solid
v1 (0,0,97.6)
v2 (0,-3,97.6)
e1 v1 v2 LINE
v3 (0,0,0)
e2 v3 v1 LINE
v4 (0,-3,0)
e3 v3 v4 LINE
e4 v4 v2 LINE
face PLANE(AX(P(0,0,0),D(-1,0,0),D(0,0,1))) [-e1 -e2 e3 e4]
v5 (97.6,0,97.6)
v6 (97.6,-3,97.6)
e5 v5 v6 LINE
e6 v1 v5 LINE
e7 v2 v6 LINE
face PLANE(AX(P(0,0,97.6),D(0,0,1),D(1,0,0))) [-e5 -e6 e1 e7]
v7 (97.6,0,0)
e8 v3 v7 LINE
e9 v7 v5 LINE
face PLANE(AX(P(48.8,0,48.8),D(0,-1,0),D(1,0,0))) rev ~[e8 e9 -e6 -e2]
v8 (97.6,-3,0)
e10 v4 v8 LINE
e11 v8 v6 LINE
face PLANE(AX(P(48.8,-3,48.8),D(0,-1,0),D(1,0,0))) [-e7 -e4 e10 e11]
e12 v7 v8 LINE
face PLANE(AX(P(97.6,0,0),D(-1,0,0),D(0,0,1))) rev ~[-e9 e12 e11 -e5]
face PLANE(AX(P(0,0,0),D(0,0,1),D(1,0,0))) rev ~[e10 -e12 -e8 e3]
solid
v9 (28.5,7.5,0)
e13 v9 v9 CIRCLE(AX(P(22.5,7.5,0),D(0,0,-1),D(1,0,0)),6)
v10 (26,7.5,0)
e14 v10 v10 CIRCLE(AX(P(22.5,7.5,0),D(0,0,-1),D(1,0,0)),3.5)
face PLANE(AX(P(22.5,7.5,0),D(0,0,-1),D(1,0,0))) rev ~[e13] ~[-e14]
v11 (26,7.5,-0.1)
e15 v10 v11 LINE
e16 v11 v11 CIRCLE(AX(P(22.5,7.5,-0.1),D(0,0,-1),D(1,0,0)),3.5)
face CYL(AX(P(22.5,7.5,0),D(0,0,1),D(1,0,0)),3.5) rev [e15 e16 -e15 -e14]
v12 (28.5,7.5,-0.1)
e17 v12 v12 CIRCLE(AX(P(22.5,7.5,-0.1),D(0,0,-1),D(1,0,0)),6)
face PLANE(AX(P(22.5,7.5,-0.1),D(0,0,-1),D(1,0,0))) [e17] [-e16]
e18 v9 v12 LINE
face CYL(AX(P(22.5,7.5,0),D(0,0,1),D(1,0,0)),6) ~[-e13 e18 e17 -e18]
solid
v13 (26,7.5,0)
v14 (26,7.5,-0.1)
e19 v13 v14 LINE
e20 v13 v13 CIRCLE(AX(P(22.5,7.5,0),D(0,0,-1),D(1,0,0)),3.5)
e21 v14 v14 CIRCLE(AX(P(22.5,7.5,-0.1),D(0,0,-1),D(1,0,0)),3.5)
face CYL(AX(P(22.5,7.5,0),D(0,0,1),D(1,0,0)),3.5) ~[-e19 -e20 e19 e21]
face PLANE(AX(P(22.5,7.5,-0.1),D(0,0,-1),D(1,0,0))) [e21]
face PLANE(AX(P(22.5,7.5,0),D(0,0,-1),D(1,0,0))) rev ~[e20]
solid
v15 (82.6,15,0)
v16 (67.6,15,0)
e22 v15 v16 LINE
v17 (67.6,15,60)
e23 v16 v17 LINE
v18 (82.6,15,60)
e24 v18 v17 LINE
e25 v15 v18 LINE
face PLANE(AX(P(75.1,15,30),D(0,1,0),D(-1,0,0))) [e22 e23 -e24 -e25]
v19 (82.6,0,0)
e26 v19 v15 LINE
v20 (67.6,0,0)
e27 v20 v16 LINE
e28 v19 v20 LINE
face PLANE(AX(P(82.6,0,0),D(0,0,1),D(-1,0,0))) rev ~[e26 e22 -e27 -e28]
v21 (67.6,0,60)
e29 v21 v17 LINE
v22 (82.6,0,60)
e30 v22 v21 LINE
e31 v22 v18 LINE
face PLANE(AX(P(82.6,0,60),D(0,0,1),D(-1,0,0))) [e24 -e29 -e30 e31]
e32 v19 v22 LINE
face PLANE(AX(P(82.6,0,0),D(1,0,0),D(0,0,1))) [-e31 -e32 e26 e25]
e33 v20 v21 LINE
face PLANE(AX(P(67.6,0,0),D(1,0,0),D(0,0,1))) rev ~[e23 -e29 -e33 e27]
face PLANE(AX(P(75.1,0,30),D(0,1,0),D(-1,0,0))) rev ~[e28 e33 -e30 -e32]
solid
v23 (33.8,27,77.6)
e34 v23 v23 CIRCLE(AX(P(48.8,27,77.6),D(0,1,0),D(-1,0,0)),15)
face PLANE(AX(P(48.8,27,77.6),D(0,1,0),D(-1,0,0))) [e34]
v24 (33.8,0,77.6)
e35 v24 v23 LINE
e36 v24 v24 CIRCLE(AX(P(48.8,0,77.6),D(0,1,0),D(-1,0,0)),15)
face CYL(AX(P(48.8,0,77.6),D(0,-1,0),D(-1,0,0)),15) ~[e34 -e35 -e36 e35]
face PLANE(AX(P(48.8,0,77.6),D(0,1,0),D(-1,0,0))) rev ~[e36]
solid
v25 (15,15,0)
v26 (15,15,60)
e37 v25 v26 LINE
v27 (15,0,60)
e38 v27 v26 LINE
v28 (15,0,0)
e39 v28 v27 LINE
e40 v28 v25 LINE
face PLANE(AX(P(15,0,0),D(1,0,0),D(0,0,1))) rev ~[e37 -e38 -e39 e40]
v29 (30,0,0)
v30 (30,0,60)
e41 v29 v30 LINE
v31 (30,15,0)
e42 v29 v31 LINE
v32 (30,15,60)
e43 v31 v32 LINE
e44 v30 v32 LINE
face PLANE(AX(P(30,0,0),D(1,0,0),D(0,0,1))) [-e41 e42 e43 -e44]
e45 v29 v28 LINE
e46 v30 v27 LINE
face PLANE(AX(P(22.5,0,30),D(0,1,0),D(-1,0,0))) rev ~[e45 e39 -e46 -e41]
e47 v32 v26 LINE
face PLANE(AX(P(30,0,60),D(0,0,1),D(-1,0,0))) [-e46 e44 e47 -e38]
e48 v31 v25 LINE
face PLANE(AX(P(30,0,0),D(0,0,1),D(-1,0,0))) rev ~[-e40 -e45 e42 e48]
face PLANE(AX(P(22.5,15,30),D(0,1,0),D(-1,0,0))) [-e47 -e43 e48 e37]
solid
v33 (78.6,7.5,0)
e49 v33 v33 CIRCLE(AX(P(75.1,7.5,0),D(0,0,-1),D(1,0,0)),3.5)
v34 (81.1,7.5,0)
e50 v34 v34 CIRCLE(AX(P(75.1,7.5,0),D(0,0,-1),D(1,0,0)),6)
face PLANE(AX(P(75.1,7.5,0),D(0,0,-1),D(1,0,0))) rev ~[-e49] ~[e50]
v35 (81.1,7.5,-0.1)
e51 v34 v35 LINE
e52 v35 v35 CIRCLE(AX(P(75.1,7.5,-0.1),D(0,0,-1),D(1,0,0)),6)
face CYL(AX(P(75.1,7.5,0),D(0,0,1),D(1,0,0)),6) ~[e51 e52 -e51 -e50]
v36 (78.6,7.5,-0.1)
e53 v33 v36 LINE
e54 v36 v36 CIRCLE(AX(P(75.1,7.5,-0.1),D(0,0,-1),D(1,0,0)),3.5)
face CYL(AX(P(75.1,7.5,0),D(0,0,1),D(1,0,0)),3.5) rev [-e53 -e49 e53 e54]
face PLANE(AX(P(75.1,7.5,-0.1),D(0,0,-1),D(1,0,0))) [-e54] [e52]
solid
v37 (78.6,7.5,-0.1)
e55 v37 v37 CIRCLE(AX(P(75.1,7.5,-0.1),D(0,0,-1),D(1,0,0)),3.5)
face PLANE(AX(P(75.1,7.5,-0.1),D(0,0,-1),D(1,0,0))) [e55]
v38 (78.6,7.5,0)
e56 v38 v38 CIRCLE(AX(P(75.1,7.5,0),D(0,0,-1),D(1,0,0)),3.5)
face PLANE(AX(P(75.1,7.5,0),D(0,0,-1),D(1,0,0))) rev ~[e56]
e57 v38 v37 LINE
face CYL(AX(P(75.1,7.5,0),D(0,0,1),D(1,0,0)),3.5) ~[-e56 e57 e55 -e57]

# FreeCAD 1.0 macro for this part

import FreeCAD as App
import Part
import Sketcher
from FreeCAD import Vector

doc = App.newDocument("Part")
body = doc.addObject("PartDesign::Body", "Body")

sketch1 = body.newObject("Sketcher::SketchObject", "Sketch")
sketch1.AttachmentSupport = (doc.getObject("XZ_Plane"), [""])
sketch1.MapMode = "FlatFace"
sketch1.addGeometry(Part.LineSegment(Vector(0, 97.6, 0), Vector(0, 0, 0)), False)
sketch1.addGeometry(Part.LineSegment(Vector(0, 0, 0), Vector(97.6, 0, 0)), False)
sketch1.addGeometry(Part.LineSegment(Vector(97.6, 0, 0), Vector(97.6, 97.6, 0)), False)
sketch1.addGeometry(Part.LineSegment(Vector(97.6, 97.6, 0), Vector(0, 97.6, 0)), False)
sketch1.addConstraint(Sketcher.Constraint("Coincident", 0, 2, 1, 1))
sketch1.addConstraint(Sketcher.Constraint("Coincident", 1, 2, 2, 1))
sketch1.addConstraint(Sketcher.Constraint("Coincident", 2, 2, 3, 1))
sketch1.addConstraint(Sketcher.Constraint("Coincident", 3, 2, 0, 1))
sketch1.addConstraint(Sketcher.Constraint("Vertical", 0))
sketch1.addConstraint(Sketcher.Constraint("Horizontal", 1))
sketch1.addConstraint(Sketcher.Constraint("Vertical", 2))
sketch1.addConstraint(Sketcher.Constraint("Horizontal", 3))
sketch1.addConstraint(Sketcher.Constraint("Coincident", 0, 2, -1, 1))
sketch1.addConstraint(Sketcher.Constraint("Equal", 3, 0))
sketch1.addConstraint(Sketcher.Constraint("DistanceX", 1, 1, 1, 2, 97.6))
pad1 = body.newObject("PartDesign::Pad", "Pad")
pad1.Profile = sketch1
pad1.Length = 3
body2 = doc.addObject("PartDesign::Body", "Body001")
body2.AllowCompound = True

sketch2 = body2.newObject("Sketcher::SketchObject", "Sketch001")
sketch2.AttachmentSupport = (doc.getObject("XZ_Plane001"), [""])
sketch2.MapMode = "FlatFace"
sketch2.addGeometry(Part.LineSegment(Vector(30, 60, 0), Vector(30, 0, 0)), False)
sketch2.addGeometry(Part.LineSegment(Vector(30, 0, 0), Vector(15, 0, 0)), False)
sketch2.addGeometry(Part.LineSegment(Vector(15, 0, 0), Vector(15, 60, 0)), False)
sketch2.addGeometry(Part.LineSegment(Vector(15, 60, 0), Vector(30, 60, 0)), False)
sketch2.addGeometry(Part.LineSegment(Vector(82.6, 60, 0), Vector(82.6, 0, 0)), False)
sketch2.addGeometry(Part.LineSegment(Vector(82.6, 0, 0), Vector(67.6, 0, 0)), False)
sketch2.addGeometry(Part.LineSegment(Vector(67.6, 0, 0), Vector(67.6, 60, 0)), False)
sketch2.addGeometry(Part.LineSegment(Vector(67.6, 60, 0), Vector(82.6, 60, 0)), False)
sketch2.addConstraint(Sketcher.Constraint("Coincident", 0, 2, 1, 1))
sketch2.addConstraint(Sketcher.Constraint("Coincident", 1, 2, 2, 1))
sketch2.addConstraint(Sketcher.Constraint("Coincident", 2, 2, 3, 1))
sketch2.addConstraint(Sketcher.Constraint("Coincident", 3, 2, 0, 1))
sketch2.addConstraint(Sketcher.Constraint("Coincident", 4, 2, 5, 1))
sketch2.addConstraint(Sketcher.Constraint("Coincident", 5, 2, 6, 1))
sketch2.addConstraint(Sketcher.Constraint("Coincident", 6, 2, 7, 1))
sketch2.addConstraint(Sketcher.Constraint("Coincident", 7, 2, 4, 1))
sketch2.addConstraint(Sketcher.Constraint("Vertical", 0))
sketch2.addConstraint(Sketcher.Constraint("Horizontal", 1))
sketch2.addConstraint(Sketcher.Constraint("Vertical", 2))
sketch2.addConstraint(Sketcher.Constraint("Horizontal", 3))
sketch2.addConstraint(Sketcher.Constraint("Vertical", 4))
sketch2.addConstraint(Sketcher.Constraint("Horizontal", 5))
sketch2.addConstraint(Sketcher.Constraint("Vertical", 6))
sketch2.addConstraint(Sketcher.Constraint("Horizontal", 7))
sketch2.addConstraint(Sketcher.Constraint("PointOnObject", 0, 2, -1))
sketch2.addConstraint(Sketcher.Constraint("PointOnObject", 4, 2, -1))
sketch2.addConstraint(Sketcher.Constraint("Horizontal", 3, 2, 6, 2))
sketch2.addConstraint(Sketcher.Constraint("Equal", 3, 5))
sketch2.addConstraint(Sketcher.Constraint("DistanceX", 1, 2, 1, 1, 15.0))
sketch2.addConstraint(Sketcher.Constraint("DistanceY", 0, 2, 0, 1, 60.0))
sketch2.addConstraint(Sketcher.Constraint("DistanceX", -1, 1, 0, 2, 30.0))
sketch2.addConstraint(Sketcher.Constraint("DistanceX", -1, 1, 4, 2, 82.6))
pad2 = body2.newObject("PartDesign::Pad", "Pad001")
pad2.Profile = sketch2
pad2.Length = 15
pad2.Reversed = True
body3 = doc.addObject("PartDesign::Body", "Body002")

sketch3 = body3.newObject("Sketcher::SketchObject", "Sketch002")
sketch3.AttachmentSupport = (doc.getObject("XY_Plane002"), [""])
sketch3.MapMode = "FlatFace"
sketch3.addGeometry(Part.Circle(Vector(22.5, 7.5, 0), Vector(0, 0, 1), 6), False)
sketch3.addGeometry(Part.Circle(Vector(22.5, 7.5, 0), Vector(0, 0, 1), 3.5), False)
sketch3.addConstraint(Sketcher.Constraint("Coincident", 1, 3, 0, 3))
sketch3.addConstraint(Sketcher.Constraint("Diameter", 0, 12.0))
sketch3.addConstraint(Sketcher.Constraint("Diameter", 1, 7.0))
sketch3.addConstraint(Sketcher.Constraint("DistanceX", -1, 1, 0, 3, 22.5))
sketch3.addConstraint(Sketcher.Constraint("DistanceY", -1, 1, 0, 3, 7.5))
pad3 = body3.newObject("PartDesign::Pad", "Pad002")
pad3.Profile = sketch3
pad3.Length = 0.1
pad3.Reversed = True
body4 = doc.addObject("PartDesign::Body", "Body003")

sketch4 = body4.newObject("Sketcher::SketchObject", "Sketch003")
sketch4.AttachmentSupport = (doc.getObject("XY_Plane003"), [""])
sketch4.MapMode = "FlatFace"
sketch4.addGeometry(Part.Circle(Vector(75.1, 7.5, 0), Vector(0, 0, 1), 6), False)
sketch4.addGeometry(Part.Circle(Vector(75.1, 7.5, 0), Vector(0, 0, 1), 3.5), False)
sketch4.addConstraint(Sketcher.Constraint("Coincident", 1, 3, 0, 3))
sketch4.addConstraint(Sketcher.Constraint("Diameter", 0, 12.0))
sketch4.addConstraint(Sketcher.Constraint("Diameter", 1, 7.0))
sketch4.addConstraint(Sketcher.Constraint("DistanceX", -1, 1, 0, 3, 75.1))
sketch4.addConstraint(Sketcher.Constraint("DistanceY", -1, 1, 0, 3, 7.5))
pad4 = body4.newObject("PartDesign::Pad", "Pad003")
pad4.Profile = sketch4
pad4.Length = 0.1
pad4.Reversed = True
body5 = doc.addObject("PartDesign::Body", "Body004")

sketch5 = body5.newObject("Sketcher::SketchObject", "Sketch004")
sketch5.AttachmentSupport = (doc.getObject("XY_Plane004"), [""])
sketch5.MapMode = "FlatFace"
sketch5.addGeometry(Part.Circle(Vector(75.1, 7.5, 0), Vector(0, 0, 1), 3.5), False)
sketch5.addConstraint(Sketcher.Constraint("Diameter", 0, 7.0))
sketch5.addConstraint(Sketcher.Constraint("DistanceX", -1, 1, 0, 3, 75.1))
sketch5.addConstraint(Sketcher.Constraint("DistanceY", -1, 1, 0, 3, 7.5))
pad5 = body5.newObject("PartDesign::Pad", "Pad004")
pad5.Profile = sketch5
pad5.Length = 0.1
pad5.Reversed = True
body6 = doc.addObject("PartDesign::Body", "Body005")

sketch6 = body6.newObject("Sketcher::SketchObject", "Sketch005")
sketch6.AttachmentSupport = (doc.getObject("XY_Plane005"), [""])
sketch6.MapMode = "FlatFace"
sketch6.addGeometry(Part.Circle(Vector(22.5, 7.5, 0), Vector(0, 0, 1), 3.5), False)
sketch6.addConstraint(Sketcher.Constraint("Diameter", 0, 7.0))
sketch6.addConstraint(Sketcher.Constraint("DistanceX", -1, 1, 0, 3, 22.5))
sketch6.addConstraint(Sketcher.Constraint("DistanceY", -1, 1, 0, 3, 7.5))
pad6 = body6.newObject("PartDesign::Pad", "Pad005")
pad6.Profile = sketch6
pad6.Length = 0.1
pad6.Reversed = True
body7 = doc.addObject("PartDesign::Body", "Body006")

sketch7 = body7.newObject("Sketcher::SketchObject", "Sketch006")
sketch7.AttachmentSupport = (doc.getObject("XZ_Plane006"), [""])
sketch7.MapMode = "FlatFace"
sketch7.addGeometry(Part.Circle(Vector(48.8, 77.6, 0), Vector(0, 0, 1), 15), False)
sketch7.addConstraint(Sketcher.Constraint("Diameter", 0, 30.0))
sketch7.addConstraint(Sketcher.Constraint("DistanceX", -1, 1, 0, 3, 48.8))
sketch7.addConstraint(Sketcher.Constraint("DistanceY", -1, 1, 0, 3, 77.6))
pad7 = body7.newObject("PartDesign::Pad", "Pad006")
pad7.Profile = sketch7
pad7.Length = 27
pad7.Reversed = True

doc.recompute()
